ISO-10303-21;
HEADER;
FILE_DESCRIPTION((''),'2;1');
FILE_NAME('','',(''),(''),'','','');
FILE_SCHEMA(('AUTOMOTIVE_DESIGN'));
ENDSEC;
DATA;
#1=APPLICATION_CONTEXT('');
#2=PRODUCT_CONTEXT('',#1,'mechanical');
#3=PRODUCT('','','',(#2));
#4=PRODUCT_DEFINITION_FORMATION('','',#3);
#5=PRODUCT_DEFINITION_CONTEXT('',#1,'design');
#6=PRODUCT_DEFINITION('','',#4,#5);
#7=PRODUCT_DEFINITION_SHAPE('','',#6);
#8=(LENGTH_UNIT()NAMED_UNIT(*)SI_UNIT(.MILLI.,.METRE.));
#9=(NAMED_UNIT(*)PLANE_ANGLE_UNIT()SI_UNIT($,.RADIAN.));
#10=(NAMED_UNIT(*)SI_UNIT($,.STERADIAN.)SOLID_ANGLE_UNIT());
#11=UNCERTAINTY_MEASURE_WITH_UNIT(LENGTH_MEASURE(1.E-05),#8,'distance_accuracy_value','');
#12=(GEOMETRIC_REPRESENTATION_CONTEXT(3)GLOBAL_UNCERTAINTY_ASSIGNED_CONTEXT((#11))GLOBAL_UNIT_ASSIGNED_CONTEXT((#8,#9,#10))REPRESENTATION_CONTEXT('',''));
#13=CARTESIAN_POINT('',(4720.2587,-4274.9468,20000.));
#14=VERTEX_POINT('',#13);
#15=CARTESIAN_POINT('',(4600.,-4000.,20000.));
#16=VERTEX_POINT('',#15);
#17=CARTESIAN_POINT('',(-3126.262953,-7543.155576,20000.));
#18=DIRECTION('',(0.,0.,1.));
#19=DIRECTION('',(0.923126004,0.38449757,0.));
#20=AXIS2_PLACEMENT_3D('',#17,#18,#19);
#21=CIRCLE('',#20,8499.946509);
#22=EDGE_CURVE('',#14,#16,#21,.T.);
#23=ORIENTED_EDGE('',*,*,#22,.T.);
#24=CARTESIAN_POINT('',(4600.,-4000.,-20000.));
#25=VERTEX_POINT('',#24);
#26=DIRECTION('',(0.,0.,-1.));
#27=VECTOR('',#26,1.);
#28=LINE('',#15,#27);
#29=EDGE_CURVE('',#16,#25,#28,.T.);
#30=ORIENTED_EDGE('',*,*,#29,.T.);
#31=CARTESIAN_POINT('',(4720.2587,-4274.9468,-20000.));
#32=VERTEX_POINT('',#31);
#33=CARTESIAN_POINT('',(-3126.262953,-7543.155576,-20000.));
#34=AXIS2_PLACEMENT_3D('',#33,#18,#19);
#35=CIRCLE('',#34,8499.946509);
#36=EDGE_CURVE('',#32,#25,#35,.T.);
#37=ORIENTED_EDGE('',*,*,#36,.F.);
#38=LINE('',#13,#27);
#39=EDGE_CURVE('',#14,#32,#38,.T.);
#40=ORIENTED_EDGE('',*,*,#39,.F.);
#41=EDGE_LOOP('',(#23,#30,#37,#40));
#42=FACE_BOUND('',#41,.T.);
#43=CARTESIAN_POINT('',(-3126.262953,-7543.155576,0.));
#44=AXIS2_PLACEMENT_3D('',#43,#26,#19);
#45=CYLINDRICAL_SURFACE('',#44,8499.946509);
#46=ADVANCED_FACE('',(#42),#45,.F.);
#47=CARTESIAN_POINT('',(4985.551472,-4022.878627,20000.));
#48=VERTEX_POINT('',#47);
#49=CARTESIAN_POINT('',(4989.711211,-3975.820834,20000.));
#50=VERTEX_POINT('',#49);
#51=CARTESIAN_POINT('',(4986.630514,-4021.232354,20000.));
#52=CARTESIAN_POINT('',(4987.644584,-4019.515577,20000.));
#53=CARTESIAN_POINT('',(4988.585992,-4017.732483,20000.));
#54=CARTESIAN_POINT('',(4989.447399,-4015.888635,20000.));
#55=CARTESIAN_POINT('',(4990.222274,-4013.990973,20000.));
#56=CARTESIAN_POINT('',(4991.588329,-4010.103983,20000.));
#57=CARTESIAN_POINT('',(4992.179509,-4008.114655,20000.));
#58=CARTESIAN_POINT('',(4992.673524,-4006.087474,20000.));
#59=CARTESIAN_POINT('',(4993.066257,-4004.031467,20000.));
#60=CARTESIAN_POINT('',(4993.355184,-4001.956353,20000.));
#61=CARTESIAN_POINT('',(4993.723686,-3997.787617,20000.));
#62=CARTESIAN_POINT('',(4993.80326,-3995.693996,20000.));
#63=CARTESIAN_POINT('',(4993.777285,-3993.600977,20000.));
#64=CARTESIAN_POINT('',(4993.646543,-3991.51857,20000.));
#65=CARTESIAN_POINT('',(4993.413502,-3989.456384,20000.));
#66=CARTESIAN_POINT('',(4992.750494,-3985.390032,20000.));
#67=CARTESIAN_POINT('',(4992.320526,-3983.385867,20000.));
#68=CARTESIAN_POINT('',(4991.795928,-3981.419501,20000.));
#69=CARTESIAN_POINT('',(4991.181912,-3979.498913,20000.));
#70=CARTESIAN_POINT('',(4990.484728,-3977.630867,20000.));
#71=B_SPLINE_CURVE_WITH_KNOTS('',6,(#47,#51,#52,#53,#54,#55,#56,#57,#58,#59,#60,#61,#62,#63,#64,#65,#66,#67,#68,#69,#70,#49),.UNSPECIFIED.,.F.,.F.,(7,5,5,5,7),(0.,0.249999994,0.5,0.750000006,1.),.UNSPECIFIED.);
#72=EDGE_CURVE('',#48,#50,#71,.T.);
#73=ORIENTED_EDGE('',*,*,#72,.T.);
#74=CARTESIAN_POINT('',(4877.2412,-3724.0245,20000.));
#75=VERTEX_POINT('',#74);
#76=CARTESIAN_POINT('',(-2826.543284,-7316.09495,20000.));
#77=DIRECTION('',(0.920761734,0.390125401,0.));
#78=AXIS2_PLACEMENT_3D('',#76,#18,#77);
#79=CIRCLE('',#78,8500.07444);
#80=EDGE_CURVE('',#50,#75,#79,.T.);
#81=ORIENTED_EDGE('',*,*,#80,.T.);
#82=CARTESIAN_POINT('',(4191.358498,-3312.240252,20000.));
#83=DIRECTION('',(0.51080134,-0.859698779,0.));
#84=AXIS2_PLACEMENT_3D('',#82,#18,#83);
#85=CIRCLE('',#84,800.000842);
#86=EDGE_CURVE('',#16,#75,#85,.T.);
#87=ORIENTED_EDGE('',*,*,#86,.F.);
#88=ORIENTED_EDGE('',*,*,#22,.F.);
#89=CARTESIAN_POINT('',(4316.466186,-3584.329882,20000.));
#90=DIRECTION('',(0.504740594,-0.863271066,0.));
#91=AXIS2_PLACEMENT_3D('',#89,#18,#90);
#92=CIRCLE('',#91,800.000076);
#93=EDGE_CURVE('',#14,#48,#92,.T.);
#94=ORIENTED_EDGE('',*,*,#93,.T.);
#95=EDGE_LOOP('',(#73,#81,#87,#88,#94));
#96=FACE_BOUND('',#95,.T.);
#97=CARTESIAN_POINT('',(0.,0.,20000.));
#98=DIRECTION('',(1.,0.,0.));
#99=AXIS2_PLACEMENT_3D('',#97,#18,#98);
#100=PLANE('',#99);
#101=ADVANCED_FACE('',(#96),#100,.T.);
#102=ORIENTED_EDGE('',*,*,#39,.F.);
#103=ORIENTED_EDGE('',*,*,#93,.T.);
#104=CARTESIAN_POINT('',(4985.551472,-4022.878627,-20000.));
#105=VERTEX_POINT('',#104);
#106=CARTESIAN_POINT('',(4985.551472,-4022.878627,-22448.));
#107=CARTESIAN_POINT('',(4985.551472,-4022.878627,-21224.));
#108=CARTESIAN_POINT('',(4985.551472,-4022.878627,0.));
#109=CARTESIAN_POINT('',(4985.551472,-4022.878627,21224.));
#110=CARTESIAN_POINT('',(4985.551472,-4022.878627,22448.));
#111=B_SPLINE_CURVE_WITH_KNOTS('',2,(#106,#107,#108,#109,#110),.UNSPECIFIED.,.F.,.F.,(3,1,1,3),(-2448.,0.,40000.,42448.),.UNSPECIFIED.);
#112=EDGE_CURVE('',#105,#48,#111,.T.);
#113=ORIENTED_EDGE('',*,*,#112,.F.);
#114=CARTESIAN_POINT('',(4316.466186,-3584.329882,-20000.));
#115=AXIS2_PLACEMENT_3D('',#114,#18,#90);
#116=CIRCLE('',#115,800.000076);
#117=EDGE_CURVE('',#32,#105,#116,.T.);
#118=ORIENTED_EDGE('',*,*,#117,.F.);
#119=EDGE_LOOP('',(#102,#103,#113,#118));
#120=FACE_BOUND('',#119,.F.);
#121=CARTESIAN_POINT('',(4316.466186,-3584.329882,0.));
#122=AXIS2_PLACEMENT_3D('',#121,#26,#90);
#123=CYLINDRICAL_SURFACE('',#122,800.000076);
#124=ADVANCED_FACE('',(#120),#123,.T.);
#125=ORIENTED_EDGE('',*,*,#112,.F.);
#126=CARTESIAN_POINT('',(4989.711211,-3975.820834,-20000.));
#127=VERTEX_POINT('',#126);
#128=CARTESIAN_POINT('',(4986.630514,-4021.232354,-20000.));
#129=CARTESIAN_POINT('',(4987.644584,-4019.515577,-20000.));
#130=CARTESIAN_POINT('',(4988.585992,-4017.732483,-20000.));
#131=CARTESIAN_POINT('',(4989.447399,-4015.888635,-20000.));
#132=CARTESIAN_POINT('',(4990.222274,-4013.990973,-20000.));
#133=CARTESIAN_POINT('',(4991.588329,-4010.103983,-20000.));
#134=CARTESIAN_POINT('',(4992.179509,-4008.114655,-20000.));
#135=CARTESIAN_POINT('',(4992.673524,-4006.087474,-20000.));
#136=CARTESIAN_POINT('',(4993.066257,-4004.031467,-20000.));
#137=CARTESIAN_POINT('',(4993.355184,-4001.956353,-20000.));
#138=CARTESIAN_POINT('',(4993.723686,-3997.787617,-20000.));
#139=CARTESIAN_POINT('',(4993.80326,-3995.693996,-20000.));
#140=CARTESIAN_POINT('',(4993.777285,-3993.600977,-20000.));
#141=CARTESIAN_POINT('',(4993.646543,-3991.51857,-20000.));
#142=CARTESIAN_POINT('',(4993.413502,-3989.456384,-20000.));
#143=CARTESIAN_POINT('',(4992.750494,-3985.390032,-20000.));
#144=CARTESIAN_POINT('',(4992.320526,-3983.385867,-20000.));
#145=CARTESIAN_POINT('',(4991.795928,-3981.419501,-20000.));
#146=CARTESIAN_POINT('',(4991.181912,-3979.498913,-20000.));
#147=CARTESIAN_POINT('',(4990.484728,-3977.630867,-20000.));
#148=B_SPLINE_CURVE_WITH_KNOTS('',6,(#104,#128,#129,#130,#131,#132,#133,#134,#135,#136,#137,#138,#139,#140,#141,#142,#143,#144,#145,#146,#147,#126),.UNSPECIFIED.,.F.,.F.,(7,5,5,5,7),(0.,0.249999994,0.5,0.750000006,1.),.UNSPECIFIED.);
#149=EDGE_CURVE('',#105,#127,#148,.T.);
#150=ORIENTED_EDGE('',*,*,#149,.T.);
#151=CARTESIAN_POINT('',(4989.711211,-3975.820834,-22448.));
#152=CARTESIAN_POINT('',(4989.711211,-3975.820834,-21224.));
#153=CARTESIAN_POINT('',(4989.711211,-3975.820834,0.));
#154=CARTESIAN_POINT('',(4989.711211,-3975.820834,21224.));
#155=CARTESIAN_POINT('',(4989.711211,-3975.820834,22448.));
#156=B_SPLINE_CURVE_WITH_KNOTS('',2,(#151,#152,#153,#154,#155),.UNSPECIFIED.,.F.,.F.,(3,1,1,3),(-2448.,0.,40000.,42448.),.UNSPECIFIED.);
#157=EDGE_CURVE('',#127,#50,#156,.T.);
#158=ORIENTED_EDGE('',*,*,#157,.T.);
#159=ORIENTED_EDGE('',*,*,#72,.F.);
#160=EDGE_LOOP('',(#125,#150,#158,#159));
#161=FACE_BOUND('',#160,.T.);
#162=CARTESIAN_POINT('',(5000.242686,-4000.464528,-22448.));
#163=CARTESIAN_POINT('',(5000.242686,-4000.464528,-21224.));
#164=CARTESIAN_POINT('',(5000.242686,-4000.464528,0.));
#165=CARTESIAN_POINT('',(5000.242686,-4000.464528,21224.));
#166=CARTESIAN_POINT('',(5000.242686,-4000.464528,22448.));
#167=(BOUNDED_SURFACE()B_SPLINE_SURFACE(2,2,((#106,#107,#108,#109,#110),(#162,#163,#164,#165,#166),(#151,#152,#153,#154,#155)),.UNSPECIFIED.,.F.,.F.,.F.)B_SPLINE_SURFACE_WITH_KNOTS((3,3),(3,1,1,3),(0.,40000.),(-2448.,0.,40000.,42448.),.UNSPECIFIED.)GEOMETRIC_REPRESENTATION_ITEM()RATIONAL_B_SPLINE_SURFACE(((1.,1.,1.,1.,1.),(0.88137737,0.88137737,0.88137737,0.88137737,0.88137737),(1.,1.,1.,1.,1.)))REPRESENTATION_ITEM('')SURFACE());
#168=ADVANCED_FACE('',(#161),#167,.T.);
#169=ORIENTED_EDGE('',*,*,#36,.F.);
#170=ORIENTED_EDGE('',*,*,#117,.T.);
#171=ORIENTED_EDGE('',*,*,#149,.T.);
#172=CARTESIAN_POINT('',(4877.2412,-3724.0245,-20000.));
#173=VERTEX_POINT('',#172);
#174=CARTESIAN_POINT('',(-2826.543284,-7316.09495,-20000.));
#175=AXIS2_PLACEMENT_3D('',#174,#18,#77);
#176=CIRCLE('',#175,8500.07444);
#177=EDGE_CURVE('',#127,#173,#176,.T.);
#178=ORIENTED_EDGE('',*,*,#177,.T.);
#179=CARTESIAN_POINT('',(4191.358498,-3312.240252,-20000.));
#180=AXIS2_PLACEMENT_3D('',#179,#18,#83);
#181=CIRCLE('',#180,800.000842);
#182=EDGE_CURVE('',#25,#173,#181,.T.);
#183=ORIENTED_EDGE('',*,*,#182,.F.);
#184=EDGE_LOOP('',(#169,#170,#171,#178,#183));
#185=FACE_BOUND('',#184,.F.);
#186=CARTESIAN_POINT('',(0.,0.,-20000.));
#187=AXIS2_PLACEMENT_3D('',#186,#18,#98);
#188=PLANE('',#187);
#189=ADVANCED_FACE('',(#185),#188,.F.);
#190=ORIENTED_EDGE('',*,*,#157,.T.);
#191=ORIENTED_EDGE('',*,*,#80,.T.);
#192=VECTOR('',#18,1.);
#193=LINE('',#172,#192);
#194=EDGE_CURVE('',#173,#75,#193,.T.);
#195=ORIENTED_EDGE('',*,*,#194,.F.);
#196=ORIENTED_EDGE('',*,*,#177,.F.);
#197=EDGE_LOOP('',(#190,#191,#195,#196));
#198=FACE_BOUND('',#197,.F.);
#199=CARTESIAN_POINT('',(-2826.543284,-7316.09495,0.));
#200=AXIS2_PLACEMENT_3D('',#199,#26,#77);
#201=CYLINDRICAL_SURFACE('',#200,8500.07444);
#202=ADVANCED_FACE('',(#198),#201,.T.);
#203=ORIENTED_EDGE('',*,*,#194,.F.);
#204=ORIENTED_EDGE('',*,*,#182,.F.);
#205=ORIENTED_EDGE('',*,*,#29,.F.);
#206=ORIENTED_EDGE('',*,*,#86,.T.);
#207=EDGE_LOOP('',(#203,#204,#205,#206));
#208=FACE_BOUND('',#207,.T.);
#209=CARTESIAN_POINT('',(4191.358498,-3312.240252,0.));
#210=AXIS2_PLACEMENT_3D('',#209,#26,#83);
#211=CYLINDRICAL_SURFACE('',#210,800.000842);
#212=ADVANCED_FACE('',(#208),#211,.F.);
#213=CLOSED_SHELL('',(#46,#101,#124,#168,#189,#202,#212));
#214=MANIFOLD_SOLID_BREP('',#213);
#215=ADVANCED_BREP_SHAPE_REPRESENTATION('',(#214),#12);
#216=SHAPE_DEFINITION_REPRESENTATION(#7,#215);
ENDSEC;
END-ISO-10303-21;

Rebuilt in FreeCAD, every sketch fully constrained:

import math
import FreeCAD as App
import Part
import Sketcher
from FreeCAD import Vector
Q = App.Units.Quantity


def edges_at(feature, points):
    """Names of the edges that pass closest to the given points."""
    edges = feature.Shape.Edges
    near = lambda p: min(range(len(edges)), key=lambda i: edges[i].distToShape(Part.Vertex(*p))[0])
    return sorted({f"Edge{near(p) + 1}" for p in points})

doc = App.newDocument("Part")
body = doc.addObject("PartDesign::Body", "Body")

# Sketch on XY plane
sketch1 = doc.addObject("Sketcher::SketchObject", "Sketch")
body.addObject(sketch1)
sketch1.AttachmentSupport = (doc.XY_Plane, [""])
sketch1.MapMode = "FlatFace"
sketch1.addGeometry([
    Part.ArcOfCircle(Part.Circle(Vector(4316, -3584, 0), Vector(0, 0, 1), 800), math.radians(-60), math.radians(-31)),
    Part.ArcOfCircle(Part.Circle(Vector(-2827, -7316, 0), Vector(0, 0, 1), 8500), math.radians(22.96), math.radians(25)),
    Part.ArcOfCircle(Part.Circle(Vector(4191, -3312, 0), Vector(0, 0, 1), 800), math.radians(-59), math.radians(-31)),
    Part.ArcOfCircle(Part.Circle(Vector(-3126, -7543, 0), Vector(0, 0, 1), 8500), math.radians(22.61), math.radians(24.64)),
], False)
sketch1.addConstraint([
    Sketcher.Constraint("Coincident", 0, 2, 1, 1),
    Sketcher.Constraint("Coincident", 1, 2, 2, 2),
    Sketcher.Constraint("Coincident", 2, 1, 3, 2),
    Sketcher.Constraint("Coincident", 3, 1, 0, 1),
    Sketcher.Constraint("Equal", 0, 2),
    Sketcher.Constraint("Horizontal", 0, 2, 2, 1),
    Sketcher.Constraint("Radius", 0, Q("800 mm")),
    Sketcher.Constraint("DistanceX", -1, 1, 0, 2, Q("5000 mm")),
    Sketcher.Constraint("DistanceY", 2, 1, -1, 1, Q("4000 mm")),
    Sketcher.Constraint("Radius", 1, Q("8500.0744 mm")),
    Sketcher.Constraint("Radius", 3, Q("8499.9465 mm")),
    Sketcher.Constraint("DistanceY", 0, 3, -1, 1, Q("3584.33 mm")),
    Sketcher.Constraint("DistanceY", 1, 3, -1, 1, Q("7316.095 mm")),
    Sketcher.Constraint("DistanceX", -1, 1, 2, 3, Q("4191.359 mm")),
    Sketcher.Constraint("DistanceY", 2, 3, -1, 1, Q("3312.241 mm")),
    Sketcher.Constraint("DistanceX", 3, 3, -1, 1, Q("3126.263 mm")),
])
pad1 = doc.addObject("PartDesign::Pad", "Pad")
body.addObject(pad1)
pad1.Profile = sketch1
pad1.Type = "TwoLengths"
pad1.Length = 20000
pad1.Length2 = 20000
doc.recompute()

fillet = doc.addObject("PartDesign::Fillet", "Fillet")
body.addObject(fillet)
fillet.Base = (pad1, edges_at(pad1, [(5000, -4000, 0)]))
fillet.Radius = 50

doc.recompute()
